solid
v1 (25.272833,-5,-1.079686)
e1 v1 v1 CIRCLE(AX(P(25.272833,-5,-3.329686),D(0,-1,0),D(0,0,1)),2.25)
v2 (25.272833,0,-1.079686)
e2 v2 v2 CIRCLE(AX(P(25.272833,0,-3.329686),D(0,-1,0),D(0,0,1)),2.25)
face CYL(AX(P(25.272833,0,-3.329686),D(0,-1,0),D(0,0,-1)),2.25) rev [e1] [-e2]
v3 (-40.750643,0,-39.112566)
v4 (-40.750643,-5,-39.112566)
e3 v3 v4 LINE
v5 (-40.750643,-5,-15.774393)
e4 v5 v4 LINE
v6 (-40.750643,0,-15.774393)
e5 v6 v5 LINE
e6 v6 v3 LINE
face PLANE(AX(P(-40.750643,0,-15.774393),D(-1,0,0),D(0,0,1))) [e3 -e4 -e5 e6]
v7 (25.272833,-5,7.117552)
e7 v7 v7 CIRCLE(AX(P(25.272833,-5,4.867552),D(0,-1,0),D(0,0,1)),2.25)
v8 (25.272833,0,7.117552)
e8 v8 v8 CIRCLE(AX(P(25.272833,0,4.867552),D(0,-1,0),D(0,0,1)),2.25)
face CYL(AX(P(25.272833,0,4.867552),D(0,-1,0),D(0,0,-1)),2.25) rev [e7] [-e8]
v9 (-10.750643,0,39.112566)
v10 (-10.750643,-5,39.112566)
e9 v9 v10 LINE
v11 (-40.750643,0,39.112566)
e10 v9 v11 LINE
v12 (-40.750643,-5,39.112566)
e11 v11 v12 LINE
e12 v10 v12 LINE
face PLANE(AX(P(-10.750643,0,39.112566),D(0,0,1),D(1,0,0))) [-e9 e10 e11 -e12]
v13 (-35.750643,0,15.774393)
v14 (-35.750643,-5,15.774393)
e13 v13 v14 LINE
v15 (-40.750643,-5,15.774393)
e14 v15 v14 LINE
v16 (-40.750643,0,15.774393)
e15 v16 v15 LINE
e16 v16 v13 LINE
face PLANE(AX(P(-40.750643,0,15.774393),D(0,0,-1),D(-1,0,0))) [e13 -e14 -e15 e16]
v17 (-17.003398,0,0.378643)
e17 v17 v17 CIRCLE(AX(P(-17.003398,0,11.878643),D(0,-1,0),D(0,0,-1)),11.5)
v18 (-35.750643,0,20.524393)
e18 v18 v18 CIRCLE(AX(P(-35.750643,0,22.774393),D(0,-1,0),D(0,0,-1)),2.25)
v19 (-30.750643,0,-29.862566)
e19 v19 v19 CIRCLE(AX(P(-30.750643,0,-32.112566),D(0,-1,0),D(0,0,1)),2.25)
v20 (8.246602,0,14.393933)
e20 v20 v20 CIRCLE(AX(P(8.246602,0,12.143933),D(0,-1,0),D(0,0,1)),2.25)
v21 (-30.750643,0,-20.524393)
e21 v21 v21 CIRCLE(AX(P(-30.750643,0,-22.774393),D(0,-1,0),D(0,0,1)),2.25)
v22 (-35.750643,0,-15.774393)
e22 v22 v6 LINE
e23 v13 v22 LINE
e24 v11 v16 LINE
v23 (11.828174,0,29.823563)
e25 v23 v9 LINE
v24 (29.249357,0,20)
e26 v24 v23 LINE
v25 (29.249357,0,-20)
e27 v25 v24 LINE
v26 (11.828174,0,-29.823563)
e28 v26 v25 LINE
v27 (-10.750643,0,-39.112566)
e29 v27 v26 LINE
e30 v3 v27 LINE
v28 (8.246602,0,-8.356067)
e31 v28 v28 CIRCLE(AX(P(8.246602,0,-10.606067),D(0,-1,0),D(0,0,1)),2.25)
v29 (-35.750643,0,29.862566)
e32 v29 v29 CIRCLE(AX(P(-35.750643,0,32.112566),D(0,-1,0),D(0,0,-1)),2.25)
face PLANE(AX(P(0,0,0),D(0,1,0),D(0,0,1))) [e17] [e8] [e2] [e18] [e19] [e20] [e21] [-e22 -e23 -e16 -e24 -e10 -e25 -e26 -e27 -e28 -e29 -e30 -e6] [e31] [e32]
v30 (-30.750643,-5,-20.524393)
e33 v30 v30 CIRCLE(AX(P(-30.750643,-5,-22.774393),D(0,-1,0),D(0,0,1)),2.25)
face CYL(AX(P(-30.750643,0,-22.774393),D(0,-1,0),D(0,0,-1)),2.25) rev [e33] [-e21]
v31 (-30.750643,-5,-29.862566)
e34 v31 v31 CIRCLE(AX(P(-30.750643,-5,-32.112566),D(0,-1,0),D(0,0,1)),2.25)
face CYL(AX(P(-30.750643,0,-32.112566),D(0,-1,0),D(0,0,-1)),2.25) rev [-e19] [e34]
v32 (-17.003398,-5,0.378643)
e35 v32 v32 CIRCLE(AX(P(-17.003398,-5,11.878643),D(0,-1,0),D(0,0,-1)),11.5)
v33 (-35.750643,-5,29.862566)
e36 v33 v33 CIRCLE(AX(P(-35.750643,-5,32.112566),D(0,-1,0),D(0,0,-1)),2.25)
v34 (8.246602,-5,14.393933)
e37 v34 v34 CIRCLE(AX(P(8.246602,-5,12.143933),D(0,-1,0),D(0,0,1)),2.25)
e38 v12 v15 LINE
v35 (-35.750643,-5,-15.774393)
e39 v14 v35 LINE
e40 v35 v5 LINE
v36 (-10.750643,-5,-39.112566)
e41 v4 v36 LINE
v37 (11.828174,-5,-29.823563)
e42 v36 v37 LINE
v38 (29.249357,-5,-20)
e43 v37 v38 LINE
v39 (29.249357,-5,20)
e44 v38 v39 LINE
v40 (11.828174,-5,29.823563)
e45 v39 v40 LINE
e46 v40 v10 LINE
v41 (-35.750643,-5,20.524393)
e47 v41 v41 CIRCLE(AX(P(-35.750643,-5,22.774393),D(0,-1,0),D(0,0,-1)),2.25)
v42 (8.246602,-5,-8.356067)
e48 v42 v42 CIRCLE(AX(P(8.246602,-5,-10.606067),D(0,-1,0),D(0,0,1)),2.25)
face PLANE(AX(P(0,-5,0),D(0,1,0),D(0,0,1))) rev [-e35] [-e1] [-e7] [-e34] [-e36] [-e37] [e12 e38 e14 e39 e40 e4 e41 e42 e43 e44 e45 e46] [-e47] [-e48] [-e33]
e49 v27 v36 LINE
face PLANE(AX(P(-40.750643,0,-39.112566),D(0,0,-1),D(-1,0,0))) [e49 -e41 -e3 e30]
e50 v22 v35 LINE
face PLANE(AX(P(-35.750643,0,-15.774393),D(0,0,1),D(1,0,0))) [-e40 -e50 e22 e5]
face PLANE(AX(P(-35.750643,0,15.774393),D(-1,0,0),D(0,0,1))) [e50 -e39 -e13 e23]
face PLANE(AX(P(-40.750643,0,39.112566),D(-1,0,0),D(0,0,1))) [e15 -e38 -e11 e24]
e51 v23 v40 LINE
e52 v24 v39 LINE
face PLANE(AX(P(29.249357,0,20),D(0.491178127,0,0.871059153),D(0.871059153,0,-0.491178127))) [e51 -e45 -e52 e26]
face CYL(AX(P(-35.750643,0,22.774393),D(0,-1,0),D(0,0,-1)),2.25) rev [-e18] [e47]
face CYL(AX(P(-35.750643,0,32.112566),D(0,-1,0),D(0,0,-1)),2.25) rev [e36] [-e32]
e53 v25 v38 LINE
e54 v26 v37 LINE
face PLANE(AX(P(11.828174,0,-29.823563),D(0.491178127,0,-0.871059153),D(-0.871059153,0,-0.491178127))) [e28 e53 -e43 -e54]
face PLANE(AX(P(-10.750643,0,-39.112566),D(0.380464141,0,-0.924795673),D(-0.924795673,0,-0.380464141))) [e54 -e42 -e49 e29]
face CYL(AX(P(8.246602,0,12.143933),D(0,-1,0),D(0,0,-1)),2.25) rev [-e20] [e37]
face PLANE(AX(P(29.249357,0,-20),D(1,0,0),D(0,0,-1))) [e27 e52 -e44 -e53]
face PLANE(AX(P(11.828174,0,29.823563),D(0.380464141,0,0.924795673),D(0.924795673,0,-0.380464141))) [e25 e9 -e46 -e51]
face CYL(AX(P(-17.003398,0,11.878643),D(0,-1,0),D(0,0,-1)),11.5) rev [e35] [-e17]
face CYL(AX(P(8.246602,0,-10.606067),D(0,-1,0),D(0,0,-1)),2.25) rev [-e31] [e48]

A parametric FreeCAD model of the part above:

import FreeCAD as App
import Part
import Sketcher

V = App.Vector
Q = App.Units.Quantity

doc = App.newDocument("Part")
params = doc.addObject("Spreadsheet::Sheet", "Params")
for row, (alias, value) in enumerate([
    ("sketch1_diameter", "23 mm"),
    ("sketch1_diameter2", "4.5 mm"),
    ("sketch1_width", "5 mm"),
    ("sketch1_width2", "30 mm"),
    ("sketch1_height", "40 mm"),
    ("pad1_length", "5 mm"),
], start=1):
    params.set(f"A{row}", alias)
    params.set(f"B{row}", "=" + value)
    params.setAlias(f"B{row}", alias)

body = doc.addObject("PartDesign::Body", "Body")

sketch1 = body.newObject("Sketcher::SketchObject", "Sketch")
sketch1.AttachmentSupport = (doc.getObject("XZ_Plane"), [""])
sketch1.MapMode = "FlatFace"
sketch1.AttachmentOffset = App.Placement(V(0, 0, 5), App.Rotation())
sketch1.addGeometry(Part.LineSegment(V(-35.750643, 15.774393, 0), V(-35.750643, -15.774393, 0)), False)
sketch1.addGeometry(Part.LineSegment(V(-35.750643, -15.774393, 0), V(-40.750643, -15.774393, 0)), False)
sketch1.addGeometry(Part.LineSegment(V(-40.750643, -15.774393, 0), V(-40.750643, -39.112566, 0)), False)
sketch1.addGeometry(Part.LineSegment(V(-40.750643, -39.112566, 0), V(-10.750643, -39.112566, 0)), False)
sketch1.addGeometry(Part.LineSegment(V(-10.750643, -39.112566, 0), V(11.828174, -29.823563, 0)), False)
sketch1.addGeometry(Part.LineSegment(V(11.828174, -29.823563, 0), V(29.249357, -20, 0)), False)
sketch1.addGeometry(Part.LineSegment(V(29.249357, -20, 0), V(29.249357, 20, 0)), False)
sketch1.addGeometry(Part.LineSegment(V(29.249357, 20, 0), V(11.828174, 29.823563, 0)), False)
sketch1.addGeometry(Part.LineSegment(V(11.828174, 29.823563, 0), V(-10.750643, 39.112566, 0)), False)
sketch1.addGeometry(Part.LineSegment(V(-10.750643, 39.112566, 0), V(-40.750643, 39.112566, 0)), False)
sketch1.addGeometry(Part.LineSegment(V(-40.750643, 39.112566, 0), V(-40.750643, 15.774393, 0)), False)
sketch1.addGeometry(Part.LineSegment(V(-40.750643, 15.774393, 0), V(-35.750643, 15.774393, 0)), False)
sketch1.addGeometry(Part.Circle(V(-30.750643, -32.112566, 0), V(0, 0, 1), 2.25), False)
sketch1.addGeometry(Part.Circle(V(-30.750643, -22.774393, 0), V(0, 0, 1), 2.25), False)
sketch1.addGeometry(Part.Circle(V(8.246602, -10.606067, 0), V(0, 0, 1), 2.25), False)
sketch1.addGeometry(Part.Circle(V(25.272833, -3.329686, 0), V(0, 0, 1), 2.25), False)
sketch1.addGeometry(Part.Circle(V(-17.003398, 11.878643, 0), V(0, 0, 1), 11.5), False)
sketch1.addGeometry(Part.Circle(V(-35.750643, 22.774393, 0), V(0, 0, 1), 2.25), False)
sketch1.addGeometry(Part.Circle(V(-35.750643, 32.112566, 0), V(0, 0, 1), 2.25), False)
sketch1.addGeometry(Part.Circle(V(8.246602, 12.143933, 0), V(0, 0, 1), 2.25), False)
sketch1.addGeometry(Part.Circle(V(25.272833, 4.867552, 0), V(0, 0, 1), 2.25), False)
sketch1.addConstraint(Sketcher.Constraint("Coincident", 0, 2, 1, 1))
sketch1.addConstraint(Sketcher.Constraint("Coincident", 1, 2, 2, 1))
sketch1.addConstraint(Sketcher.Constraint("Coincident", 2, 2, 3, 1))
sketch1.addConstraint(Sketcher.Constraint("Coincident", 3, 2, 4, 1))
sketch1.addConstraint(Sketcher.Constraint("Coincident", 4, 2, 5, 1))
sketch1.addConstraint(Sketcher.Constraint("Coincident", 5, 2, 6, 1))
sketch1.addConstraint(Sketcher.Constraint("Coincident", 6, 2, 7, 1))
sketch1.addConstraint(Sketcher.Constraint("Coincident", 7, 2, 8, 1))
sketch1.addConstraint(Sketcher.Constraint("Coincident", 8, 2, 9, 1))
sketch1.addConstraint(Sketcher.Constraint("Coincident", 9, 2, 10, 1))
sketch1.addConstraint(Sketcher.Constraint("Coincident", 10, 2, 11, 1))
sketch1.addConstraint(Sketcher.Constraint("Coincident", 11, 2, 0, 1))
sketch1.addConstraint(Sketcher.Constraint("Vertical", 0))
sketch1.addConstraint(Sketcher.Constraint("Horizontal", 1))
sketch1.addConstraint(Sketcher.Constraint("Vertical", 2))
sketch1.addConstraint(Sketcher.Constraint("Horizontal", 3))
sketch1.addConstraint(Sketcher.Constraint("Vertical", 6))
sketch1.addConstraint(Sketcher.Constraint("Horizontal", 9))
sketch1.addConstraint(Sketcher.Constraint("Vertical", 10))
sketch1.addConstraint(Sketcher.Constraint("Horizontal", 11))
sketch1.addConstraint(Sketcher.Constraint("Equal", 12, 13))
sketch1.addConstraint(Sketcher.Constraint("Equal", 13, 14))
sketch1.addConstraint(Sketcher.Constraint("Equal", 14, 15))
sketch1.addConstraint(Sketcher.Constraint("Equal", 15, 17))
sketch1.addConstraint(Sketcher.Constraint("Equal", 17, 18))
sketch1.addConstraint(Sketcher.Constraint("Equal", 18, 19))
sketch1.addConstraint(Sketcher.Constraint("Equal", 19, 20))
sketch1.addConstraint(Sketcher.Constraint("Symmetric", 4, 2, 7, 2, -1))
sketch1.addConstraint(Sketcher.Constraint("Symmetric", 3, 2, 8, 2, -1))
sketch1.addConstraint(Sketcher.Constraint("Symmetric", 1, 2, 10, 2, -1))
sketch1.addConstraint(Sketcher.Constraint("Vertical", 12, 3, 13, 3))
sketch1.addConstraint(Sketcher.Constraint("Vertical", 17, 3, 18, 3))
sketch1.addConstraint(Sketcher.Constraint("Vertical", 14, 3, 19, 3))
sketch1.addConstraint(Sketcher.Constraint("Vertical", 15, 3, 20, 3))
sketch1.addConstraint(Sketcher.Constraint("Vertical", 18, 3, 0, 2))
sketch1.addConstraint(Sketcher.Constraint("Equal", 5, 7))
sketch1.addConstraint(Sketcher.Constraint("Diameter", 16, Q("23 mm")))
sketch1.addConstraint(Sketcher.Constraint("Diameter", 12, Q("4.5 mm")))
sketch1.addConstraint(Sketcher.Constraint("DistanceX", 1, 2, 1, 1, Q("5 mm")))
sketch1.addConstraint(Sketcher.Constraint("DistanceX", 3, 1, 3, 2, Q("30 mm")))
sketch1.addConstraint(Sketcher.Constraint("DistanceY", 6, 1, 6, 2, Q("40 mm")))
sketch1.addConstraint(Sketcher.Constraint("Distance", 5, Q("20 mm")))
sketch1.addConstraint(Sketcher.Constraint("DistanceX", 17, 3, 13, 3, Q("5 mm")))
sketch1.addConstraint(Sketcher.Constraint("DistanceY", 13, 3, 0, 2, Q("7 mm")))
sketch1.addConstraint(Sketcher.Constraint("DistanceY", 2, 2, 12, 3, Q("7 mm")))
sketch1.addConstraint(Sketcher.Constraint("DistanceY", 18, 3, 8, 2, Q("7 mm")))
sketch1.addConstraint(Sketcher.Constraint("DistanceY", 10, 2, 17, 3, Q("7 mm")))
sketch1.addConstraint(Sketcher.Constraint("DistanceX", 16, 3, 14, 3, Q("25.25 mm")))
sketch1.addConstraint(Sketcher.Constraint("DistanceY", 14, 3, 19, 3, Q("22.75 mm")))
sketch1.addConstraint(Sketcher.Constraint("DistanceY", 12, 3, 14, 3, Q("21.506499 mm")))
sketch1.addConstraint(Sketcher.Constraint("DistanceY", 0, 2, 0, 1, Q("31.548787 mm")))
sketch1.addConstraint(Sketcher.Constraint("DistanceY", 2, 2, 2, 1, Q("23.338173 mm")))
sketch1.addConstraint(Sketcher.Constraint("DistanceX", 14, 3, 15, 3, Q("17.026231 mm")))
sketch1.addConstraint(Sketcher.Constraint("DistanceY", 14, 3, 15, 3, Q("7.276381 mm")))
sketch1.addConstraint(Sketcher.Constraint("DistanceY", 14, 3, 16, 3, Q("22.48471 mm")))
sketch1.addConstraint(Sketcher.Constraint("DistanceY", 15, 3, 20, 3, Q("8.197238 mm")))
sketch1.addConstraint(Sketcher.Constraint("DistanceX", 14, 3, 4, 2, Q("3.581572 mm")))
sketch1.addConstraint(Sketcher.Constraint("DistanceY", 19, 3, 7, 2, Q("17.679629 mm")))
sketch1.addConstraint(Sketcher.Constraint("Distance", 4, Q("24.414925 mm")))
sketch1.addConstraint(Sketcher.Constraint("DistanceX", 12, 3, -1, 1, Q("30.750643 mm")))
sketch1.setExpression("Constraints[36]", "Params.sketch1_diameter")
sketch1.setExpression("Constraints[37]", "Params.sketch1_diameter2")
sketch1.setExpression("Constraints[38]", "Params.sketch1_width")
sketch1.setExpression("Constraints[39]", "Params.sketch1_width2")
sketch1.setExpression("Constraints[40]", "Params.sketch1_height")
pad1 = body.newObject("PartDesign::Pad", "Pad")
pad1.Profile = sketch1
pad1.setExpression("Length", "Params.pad1_length")
pad1.Reversed = True

doc.recompute()
